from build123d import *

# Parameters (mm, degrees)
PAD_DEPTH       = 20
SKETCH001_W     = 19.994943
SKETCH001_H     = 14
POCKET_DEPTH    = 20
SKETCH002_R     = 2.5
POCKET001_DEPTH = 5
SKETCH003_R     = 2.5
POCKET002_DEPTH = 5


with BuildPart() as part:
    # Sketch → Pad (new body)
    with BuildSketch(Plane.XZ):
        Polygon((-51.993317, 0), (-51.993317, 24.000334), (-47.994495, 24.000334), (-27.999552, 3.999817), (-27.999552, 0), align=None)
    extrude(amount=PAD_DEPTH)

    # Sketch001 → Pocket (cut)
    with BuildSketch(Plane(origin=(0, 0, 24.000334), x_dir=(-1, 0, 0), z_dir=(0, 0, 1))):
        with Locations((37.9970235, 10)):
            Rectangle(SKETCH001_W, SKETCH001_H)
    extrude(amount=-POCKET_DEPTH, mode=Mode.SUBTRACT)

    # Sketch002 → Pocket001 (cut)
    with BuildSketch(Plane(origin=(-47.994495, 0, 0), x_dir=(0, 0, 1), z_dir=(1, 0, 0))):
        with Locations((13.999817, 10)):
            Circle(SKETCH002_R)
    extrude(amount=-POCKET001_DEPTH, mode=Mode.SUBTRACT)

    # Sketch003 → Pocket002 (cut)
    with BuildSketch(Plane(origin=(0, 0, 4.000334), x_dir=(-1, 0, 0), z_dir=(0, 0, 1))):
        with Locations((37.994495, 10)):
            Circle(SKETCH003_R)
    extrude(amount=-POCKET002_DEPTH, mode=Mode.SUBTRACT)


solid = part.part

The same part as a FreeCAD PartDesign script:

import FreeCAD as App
import Part
import Sketcher
from FreeCAD import Vector

doc = App.newDocument("Part")
body = doc.addObject("PartDesign::Body", "Body")

# Sketch on XZ plane
sketch1 = body.newObject("Sketcher::SketchObject", "Sketch")
sketch1.AttachmentSupport = (doc.getObject("XZ_Plane"), [""])
sketch1.MapMode = "FlatFace"
sketch1.addGeometry([
    Part.LineSegment(Vector(-52, 24, 0), Vector(-52, 0, 0)),  # 0
    Part.LineSegment(Vector(-52, 0, 0), Vector(-28, 0, 0)),  # 1
    Part.LineSegment(Vector(-28, 0, 0), Vector(-28, 4, 0)),  # 2
    Part.LineSegment(Vector(-28, 4, 0), Vector(-48, 24, 0)),  # 3
    Part.LineSegment(Vector(-48, 24, 0), Vector(-52, 24, 0)),  # 4
], False)
sketch1.addConstraint([
    Sketcher.Constraint("Coincident", 0, 2, 1, 1),
    Sketcher.Constraint("Coincident", 1, 2, 2, 1),
    Sketcher.Constraint("Coincident", 2, 2, 3, 1),
    Sketcher.Constraint("Coincident", 3, 2, 4, 1),
    Sketcher.Constraint("Coincident", 4, 2, 0, 1),
    Sketcher.Constraint("Vertical", 0),
    Sketcher.Constraint("Horizontal", 1),
    Sketcher.Constraint("Vertical", 2),
    Sketcher.Constraint("Horizontal", 4),
    Sketcher.Constraint("PointOnObject", 0, 2, -1),
    Sketcher.Constraint("DistanceX", 4, 2, 4, 1, 3.998822),
    Sketcher.Constraint("Distance", 3, 28.281061),
    Sketcher.Constraint("DistanceX", 1, 1, 1, 2, 23.993765),
    Sketcher.Constraint("DistanceY", 0, 2, 0, 1, 24.000334),
    Sketcher.Constraint("DistanceX", 0, 2, -1, 1, 51.993317),
])
pad1 = body.newObject("PartDesign::Pad", "Pad")
pad1.Profile = sketch1
pad1.Length = 20

# Sketch on XY plane
sketch2 = body.newObject("Sketcher::SketchObject", "Sketch001")
sketch2.AttachmentSupport = (doc.getObject("XY_Plane"), [""])
sketch2.MapMode = "FlatFace"
sketch2.AttachmentOffset = App.Placement(Vector(0, 0, 24.000334), App.Rotation())
sketch2.addGeometry([
    Part.LineSegment(Vector(-28, -17, 0), Vector(-28, -3, 0)),
    Part.LineSegment(Vector(-28, -3, 0), Vector(-48, -3, 0)),
    Part.LineSegment(Vector(-48, -3, 0), Vector(-48, -17, 0)),
    Part.LineSegment(Vector(-48, -17, 0), Vector(-28, -17, 0)),
], False)
sketch2.addConstraint([
    Sketcher.Constraint("Coincident", 0, 2, 1, 1),
    Sketcher.Constraint("Coincident", 1, 2, 2, 1),
    Sketcher.Constraint("Coincident", 2, 2, 3, 1),
    Sketcher.Constraint("Coincident", 3, 2, 0, 1),
    Sketcher.Constraint("Vertical", 0),
    Sketcher.Constraint("Horizontal", 1),
    Sketcher.Constraint("Vertical", 2),
    Sketcher.Constraint("Horizontal", 3),
    Sketcher.Constraint("DistanceY", 0, 1, 0, 2, 14.0),
    Sketcher.Constraint("DistanceY", 0, 2, -1, 1, 3.0),
    Sketcher.Constraint("DistanceX", 1, 2, 1, 1, 19.994943),
    Sketcher.Constraint("DistanceX", 0, 2, -1, 1, 27.999552),
])
pocket1 = body.newObject("PartDesign::Pocket", "Pocket")
pocket1.Profile = sketch2
pocket1.Length = 20

# Sketch on YZ plane
sketch3 = body.newObject("Sketcher::SketchObject", "Sketch002")
sketch3.AttachmentSupport = (doc.getObject("YZ_Plane"), [""])
sketch3.MapMode = "FlatFace"
sketch3.AttachmentOffset = App.Placement(Vector(0, 0, -47.994495), App.Rotation())
sketch3.addGeometry(Part.Circle(Vector(-10, 14, 0), Vector(0, 0, 1), 2.5), False)
sketch3.addConstraint([
    Sketcher.Constraint("Diameter", 0, 5.0),
    Sketcher.Constraint("DistanceX", 0, 3, -1, 1, 10.0),
    Sketcher.Constraint("DistanceY", -1, 1, 0, 3, 13.999817),
])
pocket2 = body.newObject("PartDesign::Pocket", "Pocket001")
pocket2.Profile = sketch3
pocket2.Length = 5

# Sketch on XY plane
sketch4 = body.newObject("Sketcher::SketchObject", "Sketch003")
sketch4.AttachmentSupport = (doc.getObject("XY_Plane"), [""])
sketch4.MapMode = "FlatFace"
sketch4.AttachmentOffset = App.Placement(Vector(0, 0, 4.000334), App.Rotation())
sketch4.addGeometry(Part.Circle(Vector(-38, -10, 0), Vector(0, 0, 1), 2.5), False)
sketch4.addConstraint([
    Sketcher.Constraint("Diameter", 0, 5.0),
    Sketcher.Constraint("DistanceY", 0, 3, -1, 1, 10.0),
    Sketcher.Constraint("DistanceX", 0, 3, -1, 1, 37.994495),
])
pocket3 = body.newObject("PartDesign::Pocket", "Pocket002")
pocket3.Profile = sketch4
pocket3.Length = 5

doc.recompute()
